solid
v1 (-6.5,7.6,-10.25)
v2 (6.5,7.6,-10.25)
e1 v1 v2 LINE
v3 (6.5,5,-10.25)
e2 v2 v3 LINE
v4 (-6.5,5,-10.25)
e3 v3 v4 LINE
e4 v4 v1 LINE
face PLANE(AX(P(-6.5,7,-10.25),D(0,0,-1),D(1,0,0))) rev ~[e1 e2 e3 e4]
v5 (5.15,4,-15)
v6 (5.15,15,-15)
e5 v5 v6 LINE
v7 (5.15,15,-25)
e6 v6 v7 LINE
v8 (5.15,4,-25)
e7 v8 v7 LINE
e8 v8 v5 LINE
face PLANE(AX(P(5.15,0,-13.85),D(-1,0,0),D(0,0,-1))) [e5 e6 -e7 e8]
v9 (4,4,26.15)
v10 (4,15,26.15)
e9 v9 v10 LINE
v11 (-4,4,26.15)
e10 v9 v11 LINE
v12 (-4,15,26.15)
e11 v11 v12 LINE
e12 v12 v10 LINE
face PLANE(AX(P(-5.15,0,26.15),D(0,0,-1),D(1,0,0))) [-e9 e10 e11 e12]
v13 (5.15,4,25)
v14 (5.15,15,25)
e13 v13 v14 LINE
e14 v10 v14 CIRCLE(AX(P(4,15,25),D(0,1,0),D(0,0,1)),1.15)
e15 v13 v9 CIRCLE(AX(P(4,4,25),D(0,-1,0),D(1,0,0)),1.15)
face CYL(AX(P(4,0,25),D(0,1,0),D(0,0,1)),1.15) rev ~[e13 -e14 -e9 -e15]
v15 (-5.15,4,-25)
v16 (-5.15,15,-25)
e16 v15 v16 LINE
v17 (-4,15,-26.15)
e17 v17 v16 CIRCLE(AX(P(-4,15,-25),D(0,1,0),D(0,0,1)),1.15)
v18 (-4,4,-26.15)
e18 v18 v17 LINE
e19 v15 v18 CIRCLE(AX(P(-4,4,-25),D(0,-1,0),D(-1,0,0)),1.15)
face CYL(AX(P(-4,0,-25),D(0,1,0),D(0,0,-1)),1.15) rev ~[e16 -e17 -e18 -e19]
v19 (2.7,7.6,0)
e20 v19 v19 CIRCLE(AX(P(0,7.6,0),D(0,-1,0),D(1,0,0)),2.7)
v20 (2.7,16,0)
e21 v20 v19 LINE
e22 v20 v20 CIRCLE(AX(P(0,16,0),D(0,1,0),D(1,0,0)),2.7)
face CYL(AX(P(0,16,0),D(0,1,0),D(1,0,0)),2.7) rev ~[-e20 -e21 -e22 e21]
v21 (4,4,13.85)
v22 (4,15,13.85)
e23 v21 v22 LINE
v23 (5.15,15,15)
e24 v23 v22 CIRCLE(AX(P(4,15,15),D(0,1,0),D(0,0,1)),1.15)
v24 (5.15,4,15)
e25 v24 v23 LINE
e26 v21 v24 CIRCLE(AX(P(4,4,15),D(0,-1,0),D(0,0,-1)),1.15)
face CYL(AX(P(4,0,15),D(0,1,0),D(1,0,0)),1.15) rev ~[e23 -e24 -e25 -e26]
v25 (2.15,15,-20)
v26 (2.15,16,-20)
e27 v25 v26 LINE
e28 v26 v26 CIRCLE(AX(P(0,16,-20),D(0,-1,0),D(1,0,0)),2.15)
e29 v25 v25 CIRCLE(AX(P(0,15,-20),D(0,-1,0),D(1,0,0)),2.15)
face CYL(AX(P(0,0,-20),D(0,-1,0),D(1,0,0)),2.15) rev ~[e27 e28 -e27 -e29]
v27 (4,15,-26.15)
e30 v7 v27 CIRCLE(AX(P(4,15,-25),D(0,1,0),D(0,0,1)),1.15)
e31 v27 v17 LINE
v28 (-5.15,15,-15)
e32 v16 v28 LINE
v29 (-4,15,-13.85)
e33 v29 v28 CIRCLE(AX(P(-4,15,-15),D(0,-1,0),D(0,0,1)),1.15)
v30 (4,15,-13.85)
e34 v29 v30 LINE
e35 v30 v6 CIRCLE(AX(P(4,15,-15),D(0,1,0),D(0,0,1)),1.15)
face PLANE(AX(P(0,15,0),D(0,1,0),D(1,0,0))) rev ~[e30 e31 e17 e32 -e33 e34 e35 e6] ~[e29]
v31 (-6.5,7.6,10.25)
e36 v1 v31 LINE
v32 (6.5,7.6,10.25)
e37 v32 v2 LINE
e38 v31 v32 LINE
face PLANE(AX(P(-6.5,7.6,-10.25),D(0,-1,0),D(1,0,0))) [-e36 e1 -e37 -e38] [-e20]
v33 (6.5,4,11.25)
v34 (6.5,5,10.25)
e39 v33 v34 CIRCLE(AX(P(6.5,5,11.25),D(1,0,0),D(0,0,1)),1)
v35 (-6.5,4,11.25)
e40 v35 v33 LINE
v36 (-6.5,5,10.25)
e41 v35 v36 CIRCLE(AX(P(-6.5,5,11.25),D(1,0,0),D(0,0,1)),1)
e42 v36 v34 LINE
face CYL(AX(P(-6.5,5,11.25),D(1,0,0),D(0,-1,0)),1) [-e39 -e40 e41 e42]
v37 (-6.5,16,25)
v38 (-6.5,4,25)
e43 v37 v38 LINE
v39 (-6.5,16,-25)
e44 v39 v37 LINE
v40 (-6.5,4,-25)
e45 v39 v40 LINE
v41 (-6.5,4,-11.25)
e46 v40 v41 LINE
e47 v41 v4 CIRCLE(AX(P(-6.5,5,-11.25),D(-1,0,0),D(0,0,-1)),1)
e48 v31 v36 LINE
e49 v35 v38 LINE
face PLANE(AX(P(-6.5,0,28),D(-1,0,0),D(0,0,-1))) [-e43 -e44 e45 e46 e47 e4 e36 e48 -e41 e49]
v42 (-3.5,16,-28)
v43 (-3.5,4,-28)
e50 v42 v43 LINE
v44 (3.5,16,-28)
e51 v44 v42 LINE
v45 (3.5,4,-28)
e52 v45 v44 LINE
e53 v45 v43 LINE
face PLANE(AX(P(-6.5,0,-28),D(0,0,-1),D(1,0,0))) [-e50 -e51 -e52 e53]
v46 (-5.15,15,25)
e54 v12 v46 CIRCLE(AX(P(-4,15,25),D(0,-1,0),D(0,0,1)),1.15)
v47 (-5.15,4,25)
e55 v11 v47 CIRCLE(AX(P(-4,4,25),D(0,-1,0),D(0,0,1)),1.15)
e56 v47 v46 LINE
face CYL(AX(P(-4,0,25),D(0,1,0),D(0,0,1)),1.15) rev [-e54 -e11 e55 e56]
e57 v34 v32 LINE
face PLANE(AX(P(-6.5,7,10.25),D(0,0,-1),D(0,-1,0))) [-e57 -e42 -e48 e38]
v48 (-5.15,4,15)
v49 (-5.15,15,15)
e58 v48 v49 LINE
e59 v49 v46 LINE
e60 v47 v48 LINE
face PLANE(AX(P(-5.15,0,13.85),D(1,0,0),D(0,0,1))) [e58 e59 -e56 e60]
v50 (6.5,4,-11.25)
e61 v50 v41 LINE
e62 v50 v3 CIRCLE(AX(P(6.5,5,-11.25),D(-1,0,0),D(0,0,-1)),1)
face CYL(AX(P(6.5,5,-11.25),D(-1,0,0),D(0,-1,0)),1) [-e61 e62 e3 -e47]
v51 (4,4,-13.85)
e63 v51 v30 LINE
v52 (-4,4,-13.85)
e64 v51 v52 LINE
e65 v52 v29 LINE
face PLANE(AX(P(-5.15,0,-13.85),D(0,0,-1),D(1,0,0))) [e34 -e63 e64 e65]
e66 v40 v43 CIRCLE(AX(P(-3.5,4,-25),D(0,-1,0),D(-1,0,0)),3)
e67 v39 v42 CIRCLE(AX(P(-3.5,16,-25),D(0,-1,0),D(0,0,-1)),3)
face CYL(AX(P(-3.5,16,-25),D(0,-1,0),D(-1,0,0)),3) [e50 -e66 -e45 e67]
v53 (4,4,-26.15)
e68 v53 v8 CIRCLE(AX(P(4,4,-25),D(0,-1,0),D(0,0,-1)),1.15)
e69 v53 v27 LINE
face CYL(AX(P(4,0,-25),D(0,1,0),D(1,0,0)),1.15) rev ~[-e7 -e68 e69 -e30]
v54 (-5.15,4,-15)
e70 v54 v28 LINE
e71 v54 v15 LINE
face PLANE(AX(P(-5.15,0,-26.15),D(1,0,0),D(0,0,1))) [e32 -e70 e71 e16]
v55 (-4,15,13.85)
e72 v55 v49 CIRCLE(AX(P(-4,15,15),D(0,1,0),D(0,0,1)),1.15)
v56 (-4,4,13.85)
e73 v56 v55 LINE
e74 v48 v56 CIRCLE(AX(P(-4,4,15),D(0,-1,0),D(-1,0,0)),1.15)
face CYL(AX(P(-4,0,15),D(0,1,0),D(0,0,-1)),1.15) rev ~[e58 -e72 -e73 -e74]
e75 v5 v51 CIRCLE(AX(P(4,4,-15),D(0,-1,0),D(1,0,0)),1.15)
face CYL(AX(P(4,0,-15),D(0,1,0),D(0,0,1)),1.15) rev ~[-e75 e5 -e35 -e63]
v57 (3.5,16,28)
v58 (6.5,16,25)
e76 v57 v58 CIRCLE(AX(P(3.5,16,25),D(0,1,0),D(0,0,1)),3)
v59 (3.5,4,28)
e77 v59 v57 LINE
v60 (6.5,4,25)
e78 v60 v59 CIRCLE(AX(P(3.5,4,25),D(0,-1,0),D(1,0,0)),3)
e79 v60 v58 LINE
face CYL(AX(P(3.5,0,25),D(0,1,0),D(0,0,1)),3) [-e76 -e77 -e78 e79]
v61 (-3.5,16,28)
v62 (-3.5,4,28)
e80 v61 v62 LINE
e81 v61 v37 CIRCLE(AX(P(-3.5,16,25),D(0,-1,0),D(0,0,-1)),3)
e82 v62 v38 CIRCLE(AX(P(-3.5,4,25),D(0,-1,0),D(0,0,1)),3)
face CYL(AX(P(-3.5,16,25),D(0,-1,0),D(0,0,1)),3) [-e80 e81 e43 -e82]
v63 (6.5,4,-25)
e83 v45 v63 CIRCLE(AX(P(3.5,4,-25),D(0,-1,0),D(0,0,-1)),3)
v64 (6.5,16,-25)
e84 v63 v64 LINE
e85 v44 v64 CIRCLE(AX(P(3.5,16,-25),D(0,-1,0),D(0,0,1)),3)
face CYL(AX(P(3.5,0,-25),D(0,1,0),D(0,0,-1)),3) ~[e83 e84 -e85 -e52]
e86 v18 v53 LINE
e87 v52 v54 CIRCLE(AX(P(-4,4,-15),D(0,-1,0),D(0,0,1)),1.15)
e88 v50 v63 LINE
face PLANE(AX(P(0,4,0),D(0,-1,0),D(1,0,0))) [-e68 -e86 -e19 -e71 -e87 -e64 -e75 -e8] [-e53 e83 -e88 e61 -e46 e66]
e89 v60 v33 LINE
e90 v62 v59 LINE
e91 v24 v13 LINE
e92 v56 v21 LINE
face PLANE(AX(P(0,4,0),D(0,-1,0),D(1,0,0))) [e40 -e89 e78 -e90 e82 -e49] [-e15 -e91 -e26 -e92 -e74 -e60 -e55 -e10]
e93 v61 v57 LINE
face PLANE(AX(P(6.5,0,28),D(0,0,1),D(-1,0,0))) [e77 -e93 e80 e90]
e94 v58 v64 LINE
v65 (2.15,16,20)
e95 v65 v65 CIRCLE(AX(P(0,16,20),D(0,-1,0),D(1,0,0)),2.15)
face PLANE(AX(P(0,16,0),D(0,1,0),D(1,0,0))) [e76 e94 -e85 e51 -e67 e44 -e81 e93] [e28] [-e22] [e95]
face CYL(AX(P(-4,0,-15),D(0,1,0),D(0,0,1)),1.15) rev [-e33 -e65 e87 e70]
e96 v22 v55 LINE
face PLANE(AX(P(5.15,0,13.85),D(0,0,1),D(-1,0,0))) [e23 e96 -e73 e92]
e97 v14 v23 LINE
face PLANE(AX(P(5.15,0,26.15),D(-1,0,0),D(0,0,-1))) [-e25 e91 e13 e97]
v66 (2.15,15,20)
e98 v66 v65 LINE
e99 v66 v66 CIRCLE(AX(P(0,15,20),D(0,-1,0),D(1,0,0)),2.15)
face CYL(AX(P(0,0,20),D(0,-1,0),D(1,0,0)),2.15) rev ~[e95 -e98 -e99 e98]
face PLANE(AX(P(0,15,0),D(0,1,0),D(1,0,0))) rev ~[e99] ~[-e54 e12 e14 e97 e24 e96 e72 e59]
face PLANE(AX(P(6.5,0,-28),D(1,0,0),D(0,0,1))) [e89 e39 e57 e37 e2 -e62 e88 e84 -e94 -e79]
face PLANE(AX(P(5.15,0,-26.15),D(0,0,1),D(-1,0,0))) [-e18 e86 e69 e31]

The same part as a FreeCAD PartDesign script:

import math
import FreeCAD as App
import Part
import Sketcher

V = App.Vector


def edges_at(feature, points):
    """Names of the edges that pass closest to the given points."""
    edges = feature.Shape.Edges
    near = lambda p: min(range(len(edges)), key=lambda i: edges[i].distToShape(Part.Vertex(*p))[0])
    return sorted({f"Edge{near(p) + 1}" for p in points})

doc = App.newDocument("Part")
params = doc.addObject("Spreadsheet::Sheet", "Params")
for row, (alias, value) in enumerate([
    ("sketch1_width", "13 mm"),
    ("sketch1_height", "56 mm"),
    ("sketch1_width2", "10.3 mm"),
    ("sketch1_height2", "12.3 mm"),
    ("pad1_length", "15 mm"),
    ("sketch2_width", "13 mm"),
    ("sketch2_height", "56 mm"),
    ("pad2_length", "1 mm"),
    ("sketch3_diameter", "4.3 mm"),
    ("fillet_radius", "1.15 mm"),
    ("fillet2_radius", "3 mm"),
    ("sketch4_height", "20.5 mm"),
    ("sketch5_diameter", "5.4 mm"),
    ("sketch6_radius", "3 mm"),
    ("sketch6_width", "13 mm"),
    ("sketch6_width2", "8 mm"),
    ("sketch6_height", "10 mm"),
    ("sketch6_radius2", "1.15 mm"),
    ("pocket4_length", "4 mm"),
    ("fillet3_radius", "1 mm"),
    ("sketch7_diameter", "5.4 mm"),
    ("sketch7_width", "13 mm"),
    ("sketch7_height", "20.5 mm"),
    ("pocket5_length", "0.6 mm"),
], start=1):
    params.set(f"A{row}", alias)
    params.set(f"B{row}", "=" + value)
    params.setAlias(f"B{row}", alias)

body = doc.addObject("PartDesign::Body", "Body")

sketch1 = body.newObject("Sketcher::SketchObject", "Sketch")
sketch1.AttachmentSupport = (doc.getObject("XZ_Plane"), [""])
sketch1.MapMode = "FlatFace"
sketch1.addGeometry(Part.LineSegment(V(-6, 28, 0), V(6, 28, 0)), False)
sketch1.addGeometry(Part.LineSegment(V(6, 28, 0), V(6, -28, 0)), False)
sketch1.addGeometry(Part.LineSegment(V(6, -28, 0), V(-6, -28, 0)), False)
sketch1.addGeometry(Part.LineSegment(V(-6, -28, 0), V(-6, 28, 0)), False)
sketch1.addGeometry(Part.LineSegment(V(5, -14, 0), V(-5, -14, 0)), False)
sketch1.addGeometry(Part.LineSegment(V(-5, -14, 0), V(-5, -26, 0)), False)
sketch1.addGeometry(Part.LineSegment(V(-5, -26, 0), V(5, -26, 0)), False)
sketch1.addGeometry(Part.LineSegment(V(5, -26, 0), V(5, -14, 0)), False)
sketch1.addGeometry(Part.LineSegment(V(5, 26, 0), V(-5, 26, 0)), False)
sketch1.addGeometry(Part.LineSegment(V(-5, 26, 0), V(-5, 14, 0)), False)
sketch1.addGeometry(Part.LineSegment(V(-5, 14, 0), V(5, 14, 0)), False)
sketch1.addGeometry(Part.LineSegment(V(5, 14, 0), V(5, 26, 0)), False)
sketch1.addConstraint(Sketcher.Constraint("Coincident", 0, 2, 1, 1))
sketch1.addConstraint(Sketcher.Constraint("Coincident", 1, 2, 2, 1))
sketch1.addConstraint(Sketcher.Constraint("Coincident", 2, 2, 3, 1))
sketch1.addConstraint(Sketcher.Constraint("Coincident", 3, 2, 0, 1))
sketch1.addConstraint(Sketcher.Constraint("Coincident", 4, 2, 5, 1))
sketch1.addConstraint(Sketcher.Constraint("Coincident", 5, 2, 6, 1))
sketch1.addConstraint(Sketcher.Constraint("Coincident", 6, 2, 7, 1))
sketch1.addConstraint(Sketcher.Constraint("Coincident", 7, 2, 4, 1))
sketch1.addConstraint(Sketcher.Constraint("Coincident", 8, 2, 9, 1))
sketch1.addConstraint(Sketcher.Constraint("Coincident", 9, 2, 10, 1))
sketch1.addConstraint(Sketcher.Constraint("Coincident", 10, 2, 11, 1))
sketch1.addConstraint(Sketcher.Constraint("Coincident", 11, 2, 8, 1))
sketch1.addConstraint(Sketcher.Constraint("Horizontal", 0))
sketch1.addConstraint(Sketcher.Constraint("Vertical", 1))
sketch1.addConstraint(Sketcher.Constraint("Horizontal", 2))
sketch1.addConstraint(Sketcher.Constraint("Vertical", 3))
sketch1.addConstraint(Sketcher.Constraint("Horizontal", 4))
sketch1.addConstraint(Sketcher.Constraint("Vertical", 5))
sketch1.addConstraint(Sketcher.Constraint("Horizontal", 6))
sketch1.addConstraint(Sketcher.Constraint("Vertical", 7))
sketch1.addConstraint(Sketcher.Constraint("Horizontal", 8))
sketch1.addConstraint(Sketcher.Constraint("Vertical", 9))
sketch1.addConstraint(Sketcher.Constraint("Horizontal", 10))
sketch1.addConstraint(Sketcher.Constraint("Vertical", 11))
sketch1.addConstraint(Sketcher.Constraint("Symmetric", 0, 2, 2, 2, -1, 1))
sketch1.addConstraint(Sketcher.Constraint("Symmetric", 6, 2, 8, 2, -1, 1))
sketch1.addConstraint(Sketcher.Constraint("Symmetric", 4, 2, 10, 2, -1, 1))
sketch1.addConstraint(Sketcher.Constraint("Vertical", 5, 2, 8, 2))
sketch1.addConstraint(Sketcher.Constraint("DistanceX", 0, 1, 0, 2, 13.0))
sketch1.addConstraint(Sketcher.Constraint("DistanceY", 1, 2, 1, 1, 56.0))
sketch1.addConstraint(Sketcher.Constraint("DistanceX", 4, 2, 4, 1, 10.3))
sketch1.addConstraint(Sketcher.Constraint("DistanceY", 5, 2, 5, 1, 12.3))
sketch1.addConstraint(Sketcher.Constraint("DistanceY", 4, 2, 8, 2, 40.0))
sketch1.setExpression("Constraints[28]", "Params.sketch1_width")
sketch1.setExpression("Constraints[29]", "Params.sketch1_height")
sketch1.setExpression("Constraints[30]", "Params.sketch1_width2")
sketch1.setExpression("Constraints[31]", "Params.sketch1_height2")
pad1 = body.newObject("PartDesign::Pad", "Pad")
pad1.Profile = sketch1
pad1.setExpression("Length", "Params.pad1_length")
pad1.Reversed = True

sketch2 = body.newObject("Sketcher::SketchObject", "Sketch001")
sketch2.AttachmentSupport = (doc.getObject("XZ_Plane"), [""])
sketch2.MapMode = "FlatFace"
sketch2.AttachmentOffset = App.Placement(V(0, 0, -15), App.Rotation())
sketch2.addGeometry(Part.LineSegment(V(6, 28, 0), V(6, -28, 0)), False)
sketch2.addGeometry(Part.LineSegment(V(6, -28, 0), V(-6, -28, 0)), False)
sketch2.addGeometry(Part.LineSegment(V(-6, -28, 0), V(-6, 28, 0)), False)
sketch2.addGeometry(Part.LineSegment(V(-6, 28, 0), V(6, 28, 0)), False)
sketch2.addConstraint(Sketcher.Constraint("Coincident", 0, 2, 1, 1))
sketch2.addConstraint(Sketcher.Constraint("Coincident", 1, 2, 2, 1))
sketch2.addConstraint(Sketcher.Constraint("Coincident", 2, 2, 3, 1))
sketch2.addConstraint(Sketcher.Constraint("Coincident", 3, 2, 0, 1))
sketch2.addConstraint(Sketcher.Constraint("Vertical", 0))
sketch2.addConstraint(Sketcher.Constraint("Horizontal", 1))
sketch2.addConstraint(Sketcher.Constraint("Vertical", 2))
sketch2.addConstraint(Sketcher.Constraint("Horizontal", 3))
sketch2.addConstraint(Sketcher.Constraint("Symmetric", 0, 2, 2, 2, -1, 1))
sketch2.addConstraint(Sketcher.Constraint("DistanceX", 1, 2, 1, 1, 13.0))
sketch2.addConstraint(Sketcher.Constraint("DistanceY", 0, 2, 0, 1, 56.0))
sketch2.setExpression("Constraints[9]", "Params.sketch2_width")
sketch2.setExpression("Constraints[10]", "Params.sketch2_height")
pad2 = body.newObject("PartDesign::Pad", "Pad001")
pad2.Profile = sketch2
pad2.setExpression("Length", "Params.pad2_length")
pad2.Reversed = True

sketch3 = body.newObject("Sketcher::SketchObject", "Sketch002")
sketch3.AttachmentSupport = (doc.getObject("XZ_Plane"), [""])
sketch3.MapMode = "FlatFace"
sketch3.addGeometry(Part.Circle(V(0, 20, 0), V(0, 0, 1), 2.1), False)
sketch3.addGeometry(Part.Circle(V(0, -20, 0), V(0, 0, 1), 2.1), False)
sketch3.addConstraint(Sketcher.Constraint("Equal", 0, 1))
sketch3.addConstraint(Sketcher.Constraint("Symmetric", 0, 3, 1, 3, -1, 1))
sketch3.addConstraint(Sketcher.Constraint("PointOnObject", 0, 3, -2))
sketch3.addConstraint(Sketcher.Constraint("Diameter", 0, 4.3))
sketch3.addConstraint(Sketcher.Constraint("DistanceY", -1, 1, 0, 3, 20.0))
sketch3.setExpression("Constraints[3]", "Params.sketch3_diameter")
pocket1 = body.newObject("PartDesign::Pocket", "Pocket")
pocket1.Profile = sketch3
pocket1.Type = "ThroughAll"
doc.recompute()

fillet = body.newObject("PartDesign::Fillet", "Fillet")
fillet.Base = (pocket1, edges_at(pocket1, [
    (5.15, 7.5, -13.85),
    (5.15, 7.5, 26.15),
    (5.15, 7.5, 13.85),
    (5.15, 7.5, -26.15),
    (-5.15, 7.5, -26.15),
    (-5.15, 7.5, 13.85),
    (-5.15, 7.5, -13.85),
    (-5.15, 7.5, 26.15),
]))
fillet.setExpression("Radius", "Params.fillet_radius")
doc.recompute()

fillet2 = body.newObject("PartDesign::Fillet", "Fillet001")
fillet2.Base = (fillet, edges_at(fillet, [
    (6.5, 8, -28),
    (6.5, 8, 28),
    (-6.5, 8, 28),
    (-6.5, 8, -28),
]))
fillet2.setExpression("Radius", "Params.fillet2_radius")

sketch4 = body.newObject("Sketcher::SketchObject", "Sketch003")
sketch4.AttachmentSupport = (doc.getObject("YZ_Plane"), [""])
sketch4.MapMode = "FlatFace"
sketch4.AttachmentOffset = App.Placement(V(0, 0, -6.5), App.Rotation())
sketch4.addGeometry(Part.LineSegment(V(-7, -10, 0), V(-7, 10, 0)), False)
sketch4.addGeometry(Part.LineSegment(V(-7, 10, 0), V(7, 10, 0)), False)
sketch4.addGeometry(Part.LineSegment(V(7, 10, 0), V(7, -10, 0)), False)
sketch4.addGeometry(Part.LineSegment(V(7, -10, 0), V(-7, -10, 0)), False)
sketch4.addConstraint(Sketcher.Constraint("Coincident", 0, 2, 1, 1))
sketch4.addConstraint(Sketcher.Constraint("Coincident", 1, 2, 2, 1))
sketch4.addConstraint(Sketcher.Constraint("Coincident", 2, 2, 3, 1))
sketch4.addConstraint(Sketcher.Constraint("Coincident", 3, 2, 0, 1))
sketch4.addConstraint(Sketcher.Constraint("Vertical", 0))
sketch4.addConstraint(Sketcher.Constraint("Horizontal", 1))
sketch4.addConstraint(Sketcher.Constraint("Vertical", 2))
sketch4.addConstraint(Sketcher.Constraint("Horizontal", 3))
sketch4.addConstraint(Sketcher.Constraint("Symmetric", 0, 2, 2, 2, -1, 1))
sketch4.addConstraint(Sketcher.Constraint("DistanceY", 0, 1, 0, 2, 20.5))
sketch4.addConstraint(Sketcher.Constraint("DistanceX", 0, 2, -1, 1, 7.0))
sketch4.setExpression("Constraints[9]", "Params.sketch4_height")
pocket2 = body.newObject("PartDesign::Pocket", "Pocket001")
pocket2.Profile = sketch4
pocket2.Type = "ThroughAll"
pocket2.Reversed = True

sketch5 = body.newObject("Sketcher::SketchObject", "Sketch004")
sketch5.AttachmentSupport = (doc.getObject("XZ_Plane"), [""])
sketch5.MapMode = "FlatFace"
sketch5.AttachmentOffset = App.Placement(V(0, 0, -16), App.Rotation())
sketch5.addGeometry(Part.Circle(V(0, 0, 0), V(0, 0, 1), 2.7), False)
sketch5.addConstraint(Sketcher.Constraint("Coincident", 0, 3, -1, 1))
sketch5.addConstraint(Sketcher.Constraint("Diameter", 0, 5.4))
sketch5.setExpression("Constraints[1]", "Params.sketch5_diameter")
pocket3 = body.newObject("PartDesign::Pocket", "Pocket002")
pocket3.Profile = sketch5
pocket3.Type = "ThroughAll"
pocket3.Reversed = True

sketch6 = body.newObject("Sketcher::SketchObject", "Sketch005")
sketch6.AttachmentSupport = (doc.getObject("XZ_Plane"), [""])
sketch6.MapMode = "FlatFace"
sketch6.addGeometry(Part.LineSegment(V(6.5, -25, 0), V(6.5, -10.2, 0)), False)
sketch6.addGeometry(Part.LineSegment(V(6.5, -10.2, 0), V(-6.5, -10.2, 0)), False)
sketch6.addGeometry(Part.LineSegment(V(-6.5, -10.2, 0), V(-6.5, -25, 0)), False)
sketch6.addGeometry(Part.ArcOfCircle(Part.Circle(V(-3.5, -25, 0), V(0, 0, 1), 3), math.radians(180), math.radians(270)), False)
sketch6.addGeometry(Part.LineSegment(V(-3.5, -28, 0), V(3.5, -28, 0)), False)
sketch6.addGeometry(Part.ArcOfCircle(Part.Circle(V(3.5, -25, 0), V(0, 0, 1), 3), math.radians(-90), math.radians(0)), False)
sketch6.addGeometry(Part.LineSegment(V(-4, -13.8, 0), V(4, -13.8, 0)), False)
sketch6.addGeometry(Part.ArcOfCircle(Part.Circle(V(4, -15, 0), V(0, 0, 1), 1.2), math.radians(0), math.radians(90)), False)
sketch6.addGeometry(Part.LineSegment(V(5.2, -15, 0), V(5.2, -25, 0)), False)
sketch6.addGeometry(Part.ArcOfCircle(Part.Circle(V(4, -25, 0), V(0, 0, 1), 1.1), math.radians(-90), math.radians(0)), False)
sketch6.addGeometry(Part.LineSegment(V(4, -26.1, 0), V(-4, -26.1, 0)), False)
sketch6.addGeometry(Part.ArcOfCircle(Part.Circle(V(-4, -25, 0), V(0, 0, 1), 1.2), math.radians(180), math.radians(270)), False)
sketch6.addGeometry(Part.LineSegment(V(-5.2, -25, 0), V(-5.2, -15, 0)), False)
sketch6.addGeometry(Part.ArcOfCircle(Part.Circle(V(-4, -15, 0), V(0, 0, 1), 1.2), math.radians(90), math.radians(180)), False)
sketch6.addGeometry(Part.LineSegment(V(-6.5, 25, 0), V(-6.5, 10.2, 0)), False)
sketch6.addGeometry(Part.LineSegment(V(-6.5, 10.2, 0), V(6.5, 10.2, 0)), False)
sketch6.addGeometry(Part.LineSegment(V(6.5, 10.2, 0), V(6.5, 25, 0)), False)
sketch6.addGeometry(Part.ArcOfCircle(Part.Circle(V(3.5, 25, 0), V(0, 0, 1), 3), math.radians(0), math.radians(90)), False)
sketch6.addGeometry(Part.LineSegment(V(3.5, 28, 0), V(-3.5, 28, 0)), False)
sketch6.addGeometry(Part.ArcOfCircle(Part.Circle(V(-3.5, 25, 0), V(0, 0, 1), 3), math.radians(90), math.radians(180)), False)
sketch6.addGeometry(Part.LineSegment(V(-4, 26.1, 0), V(4, 26.1, 0)), False)
sketch6.addGeometry(Part.ArcOfCircle(Part.Circle(V(4, 25, 0), V(0, 0, 1), 1.2), math.radians(0), math.radians(90)), False)
sketch6.addGeometry(Part.LineSegment(V(5.2, 25, 0), V(5.2, 15, 0)), False)
sketch6.addGeometry(Part.ArcOfCircle(Part.Circle(V(4, 15, 0), V(0, 0, 1), 1.2), math.radians(-90), math.radians(0)), False)
sketch6.addGeometry(Part.LineSegment(V(4, 13.8, 0), V(-4, 13.8, 0)), False)
sketch6.addGeometry(Part.ArcOfCircle(Part.Circle(V(-4, 15, 0), V(0, 0, 1), 1.2), math.radians(180), math.radians(270)), False)
sketch6.addGeometry(Part.LineSegment(V(-5.2, 15, 0), V(-5.2, 25, 0)), False)
sketch6.addGeometry(Part.ArcOfCircle(Part.Circle(V(-4, 25, 0), V(0, 0, 1), 1.1), math.radians(90), math.radians(180)), False)
sketch6.addConstraint(Sketcher.Constraint("Coincident", 0, 2, 1, 1))
sketch6.addConstraint(Sketcher.Constraint("Coincident", 1, 2, 2, 1))
sketch6.addConstraint(Sketcher.Constraint("Tangent", 2, 2, 3, 1))
sketch6.addConstraint(Sketcher.Constraint("Tangent", 3, 2, 4, 1))
sketch6.addConstraint(Sketcher.Constraint("Tangent", 4, 2, 5, 1))
sketch6.addConstraint(Sketcher.Constraint("Tangent", 5, 2, 0, 1))
sketch6.addConstraint(Sketcher.Constraint("Tangent", 6, 2, 7, 2))
sketch6.addConstraint(Sketcher.Constraint("Tangent", 7, 1, 8, 1))
sketch6.addConstraint(Sketcher.Constraint("Tangent", 8, 2, 9, 2))
sketch6.addConstraint(Sketcher.Constraint("Tangent", 9, 1, 10, 1))
sketch6.addConstraint(Sketcher.Constraint("Tangent", 10, 2, 11, 2))
sketch6.addConstraint(Sketcher.Constraint("Tangent", 11, 1, 12, 1))
sketch6.addConstraint(Sketcher.Constraint("Tangent", 12, 2, 13, 2))
sketch6.addConstraint(Sketcher.Constraint("Tangent", 13, 1, 6, 1))
sketch6.addConstraint(Sketcher.Constraint("Coincident", 14, 2, 15, 1))
sketch6.addConstraint(Sketcher.Constraint("Coincident", 15, 2, 16, 1))
sketch6.addConstraint(Sketcher.Constraint("Tangent", 16, 2, 17, 1))
sketch6.addConstraint(Sketcher.Constraint("Tangent", 17, 2, 18, 1))
sketch6.addConstraint(Sketcher.Constraint("Tangent", 18, 2, 19, 1))
sketch6.addConstraint(Sketcher.Constraint("Tangent", 19, 2, 14, 1))
sketch6.addConstraint(Sketcher.Constraint("Tangent", 20, 2, 21, 2))
sketch6.addConstraint(Sketcher.Constraint("Tangent", 21, 1, 22, 1))
sketch6.addConstraint(Sketcher.Constraint("Tangent", 22, 2, 23, 2))
sketch6.addConstraint(Sketcher.Constraint("Tangent", 23, 1, 24, 1))
sketch6.addConstraint(Sketcher.Constraint("Tangent", 24, 2, 25, 2))
sketch6.addConstraint(Sketcher.Constraint("Tangent", 25, 1, 26, 1))
sketch6.addConstraint(Sketcher.Constraint("Tangent", 26, 2, 27, 2))
sketch6.addConstraint(Sketcher.Constraint("Tangent", 27, 1, 20, 1))
sketch6.addConstraint(Sketcher.Constraint("Vertical", 0))
sketch6.addConstraint(Sketcher.Constraint("Horizontal", 1))
sketch6.addConstraint(Sketcher.Constraint("Vertical", 2))
sketch6.addConstraint(Sketcher.Constraint("Horizontal", 4))
sketch6.addConstraint(Sketcher.Constraint("Horizontal", 6))
sketch6.addConstraint(Sketcher.Constraint("Vertical", 8))
sketch6.addConstraint(Sketcher.Constraint("Horizontal", 10))
sketch6.addConstraint(Sketcher.Constraint("Vertical", 12))
sketch6.addConstraint(Sketcher.Constraint("Vertical", 14))
sketch6.addConstraint(Sketcher.Constraint("Horizontal", 15))
sketch6.addConstraint(Sketcher.Constraint("Vertical", 16))
sketch6.addConstraint(Sketcher.Constraint("Horizontal", 18))
sketch6.addConstraint(Sketcher.Constraint("Horizontal", 20))
sketch6.addConstraint(Sketcher.Constraint("Vertical", 22))
sketch6.addConstraint(Sketcher.Constraint("Horizontal", 24))
sketch6.addConstraint(Sketcher.Constraint("Vertical", 26))
sketch6.addConstraint(Sketcher.Constraint("Equal", 3, 5))
sketch6.addConstraint(Sketcher.Constraint("Equal", 7, 9))
sketch6.addConstraint(Sketcher.Constraint("Equal", 9, 11))
sketch6.addConstraint(Sketcher.Constraint("Equal", 11, 13))
sketch6.addConstraint(Sketcher.Constraint("Equal", 5, 17))
sketch6.addConstraint(Sketcher.Constraint("Equal", 17, 19))
sketch6.addConstraint(Sketcher.Constraint("Equal", 13, 21))
sketch6.addConstraint(Sketcher.Constraint("Equal", 21, 23))
sketch6.addConstraint(Sketcher.Constraint("Equal", 23, 25))
sketch6.addConstraint(Sketcher.Constraint("Equal", 25, 27))
sketch6.addConstraint(Sketcher.Constraint("Symmetric", 3, 3, 17, 3, -1, 1))
sketch6.addConstraint(Sketcher.Constraint("Symmetric", 11, 3, 21, 3, -1, 1))
sketch6.addConstraint(Sketcher.Constraint("Symmetric", 7, 3, 25, 3, -1, 1))
sketch6.addConstraint(Sketcher.Constraint("Symmetric", 0, 2, 14, 2, -1, 1))
sketch6.addConstraint(Sketcher.Constraint("Horizontal", 5, 3, 9, 3))
sketch6.addConstraint(Sketcher.Constraint("Vertical", 5, 3, 17, 3))
sketch6.addConstraint(Sketcher.Constraint("Vertical", 9, 3, 21, 3))
sketch6.addConstraint(Sketcher.Constraint("Radius", 3, 3.0))
sketch6.addConstraint(Sketcher.Constraint("DistanceX", 1, 2, 1, 1, 13.0))
sketch6.addConstraint(Sketcher.Constraint("DistanceX", 6, 1, 6, 2, 8.0))
sketch6.addConstraint(Sketcher.Constraint("DistanceY", 8, 2, 8, 1, 10.0))
sketch6.addConstraint(Sketcher.Constraint("Radius", 7, 1.15))
sketch6.addConstraint(Sketcher.Constraint("DistanceY", 3, 3, -1, 1, 25.0))
sketch6.addConstraint(Sketcher.Constraint("DistanceY", 0, 1, 0, 2, 14.75))
sketch6.setExpression("Constraints[61]", "Params.sketch6_radius")
sketch6.setExpression("Constraints[62]", "Params.sketch6_width")
sketch6.setExpression("Constraints[63]", "Params.sketch6_width2")
sketch6.setExpression("Constraints[64]", "Params.sketch6_height")
sketch6.setExpression("Constraints[65]", "Params.sketch6_radius2")
pocket4 = body.newObject("PartDesign::Pocket", "Pocket003")
pocket4.Profile = sketch6
pocket4.setExpression("Length", "Params.pocket4_length")
doc.recompute()

fillet3 = body.newObject("PartDesign::Fillet", "Fillet002")
fillet3.Base = (pocket4, edges_at(pocket4, [(0, 4, -10.25), (0, 4, 10.25)]))
fillet3.setExpression("Radius", "Params.fillet3_radius")

sketch7 = body.newObject("Sketcher::SketchObject", "Sketch006")
sketch7.AttachmentSupport = (doc.getObject("XZ_Plane"), [""])
sketch7.MapMode = "FlatFace"
sketch7.AttachmentOffset = App.Placement(V(0, 0, -7), App.Rotation())
sketch7.addGeometry(Part.LineSegment(V(6.5, -10.2, 0), V(6.5, 10.2, 0)), False)
sketch7.addGeometry(Part.LineSegment(V(6.5, 10.2, 0), V(-6.5, 10.2, 0)), False)
sketch7.addGeometry(Part.LineSegment(V(-6.5, 10.2, 0), V(-6.5, -10.2, 0)), False)
sketch7.addGeometry(Part.LineSegment(V(-6.5, -10.2, 0), V(6.5, -10.2, 0)), False)
sketch7.addGeometry(Part.Circle(V(0, 0, 0), V(0, 0, 1), 2.7), False)
sketch7.addConstraint(Sketcher.Constraint("Coincident", 0, 2, 1, 1))
sketch7.addConstraint(Sketcher.Constraint("Coincident", 1, 2, 2, 1))
sketch7.addConstraint(Sketcher.Constraint("Coincident", 2, 2, 3, 1))
sketch7.addConstraint(Sketcher.Constraint("Coincident", 3, 2, 0, 1))
sketch7.addConstraint(Sketcher.Constraint("Vertical", 0))
sketch7.addConstraint(Sketcher.Constraint("Horizontal", 1))
sketch7.addConstraint(Sketcher.Constraint("Vertical", 2))
sketch7.addConstraint(Sketcher.Constraint("Horizontal", 3))
sketch7.addConstraint(Sketcher.Constraint("Coincident", 4, 3, -1, 1))
sketch7.addConstraint(Sketcher.Constraint("Symmetric", 0, 2, 2, 2, -1, 1))
sketch7.addConstraint(Sketcher.Constraint("Diameter", 4, 5.4))
sketch7.addConstraint(Sketcher.Constraint("DistanceX", 1, 2, 1, 1, 13.0))
sketch7.addConstraint(Sketcher.Constraint("DistanceY", 0, 1, 0, 2, 20.5))
sketch7.setExpression("Constraints[10]", "Params.sketch7_diameter")
sketch7.setExpression("Constraints[11]", "Params.sketch7_width")
sketch7.setExpression("Constraints[12]", "Params.sketch7_height")
pocket5 = body.newObject("PartDesign::Pocket", "Pocket004")
pocket5.Profile = sketch7
pocket5.setExpression("Length", "Params.pocket5_length")

doc.recompute()
